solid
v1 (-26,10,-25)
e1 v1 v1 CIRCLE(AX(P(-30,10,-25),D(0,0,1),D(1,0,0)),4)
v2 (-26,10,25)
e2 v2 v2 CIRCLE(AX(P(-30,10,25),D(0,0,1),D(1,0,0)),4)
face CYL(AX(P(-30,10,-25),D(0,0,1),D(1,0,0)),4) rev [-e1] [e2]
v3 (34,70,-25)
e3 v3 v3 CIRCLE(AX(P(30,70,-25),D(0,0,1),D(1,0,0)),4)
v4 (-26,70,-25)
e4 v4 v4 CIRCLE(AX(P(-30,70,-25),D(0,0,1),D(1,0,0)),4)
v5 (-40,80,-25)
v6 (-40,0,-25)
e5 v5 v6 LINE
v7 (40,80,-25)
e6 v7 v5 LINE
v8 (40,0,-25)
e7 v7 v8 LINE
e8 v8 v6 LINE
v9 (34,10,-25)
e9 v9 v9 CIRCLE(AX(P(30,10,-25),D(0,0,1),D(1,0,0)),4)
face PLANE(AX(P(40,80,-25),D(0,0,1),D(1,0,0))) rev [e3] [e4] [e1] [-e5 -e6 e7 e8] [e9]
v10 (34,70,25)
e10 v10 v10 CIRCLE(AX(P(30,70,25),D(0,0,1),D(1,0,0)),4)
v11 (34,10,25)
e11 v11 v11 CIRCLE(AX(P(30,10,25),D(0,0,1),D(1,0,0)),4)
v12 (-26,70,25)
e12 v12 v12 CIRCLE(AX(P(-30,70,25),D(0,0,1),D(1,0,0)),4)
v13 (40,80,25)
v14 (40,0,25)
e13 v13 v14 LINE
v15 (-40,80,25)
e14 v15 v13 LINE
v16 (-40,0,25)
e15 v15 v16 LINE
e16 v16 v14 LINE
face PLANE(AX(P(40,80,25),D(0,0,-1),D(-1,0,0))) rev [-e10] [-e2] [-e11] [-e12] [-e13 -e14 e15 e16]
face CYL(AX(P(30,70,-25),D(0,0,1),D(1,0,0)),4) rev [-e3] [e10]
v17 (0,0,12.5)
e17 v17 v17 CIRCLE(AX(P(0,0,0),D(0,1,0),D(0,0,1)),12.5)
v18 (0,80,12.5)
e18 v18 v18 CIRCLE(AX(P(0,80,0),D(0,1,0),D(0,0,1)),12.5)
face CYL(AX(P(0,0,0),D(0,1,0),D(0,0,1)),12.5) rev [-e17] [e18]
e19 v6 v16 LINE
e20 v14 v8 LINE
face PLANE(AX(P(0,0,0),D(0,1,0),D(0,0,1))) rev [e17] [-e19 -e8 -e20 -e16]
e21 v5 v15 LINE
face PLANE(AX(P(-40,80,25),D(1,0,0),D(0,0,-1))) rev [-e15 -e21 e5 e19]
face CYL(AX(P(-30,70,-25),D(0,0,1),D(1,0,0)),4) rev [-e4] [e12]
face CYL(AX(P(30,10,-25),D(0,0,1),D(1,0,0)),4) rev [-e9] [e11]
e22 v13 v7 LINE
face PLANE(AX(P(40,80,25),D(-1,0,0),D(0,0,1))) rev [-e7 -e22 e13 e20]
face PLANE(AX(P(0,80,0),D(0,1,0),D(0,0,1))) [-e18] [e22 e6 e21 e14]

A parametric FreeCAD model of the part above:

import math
import FreeCAD as App
import Part
import Sketcher
Q = App.Units.Quantity

doc = App.newDocument("Part")
body = doc.addObject("PartDesign::Body", "Body")

sketch1 = body.newObject("Sketcher::SketchObject", "Sketch")
sketch1.AttachmentSupport = (doc.getObject("XZ_Plane"), [""])
sketch1.MapMode = "FlatFace"
sketch1.addGeometry(Part.LineSegment(App.Vector(-40, -25, 0), App.Vector(-40, 25, 0)), False)
sketch1.addGeometry(Part.LineSegment(App.Vector(-40, 25, 0), App.Vector(40, 25, 0)), False)
sketch1.addGeometry(Part.LineSegment(App.Vector(40, 25, 0), App.Vector(40, -25, 0)), False)
sketch1.addGeometry(Part.LineSegment(App.Vector(40, -25, 0), App.Vector(-40, -25, 0)), False)
sketch1.addConstraint(Sketcher.Constraint("Coincident", 0, 2, 1, 1))
sketch1.addConstraint(Sketcher.Constraint("Coincident", 1, 2, 2, 1))
sketch1.addConstraint(Sketcher.Constraint("Coincident", 2, 2, 3, 1))
sketch1.addConstraint(Sketcher.Constraint("Coincident", 3, 2, 0, 1))
sketch1.addConstraint(Sketcher.Constraint("Vertical", 0))
sketch1.addConstraint(Sketcher.Constraint("Horizontal", 1))
sketch1.addConstraint(Sketcher.Constraint("Vertical", 2))
sketch1.addConstraint(Sketcher.Constraint("Horizontal", 3))
sketch1.addConstraint(Sketcher.Constraint("Symmetric", 0, 2, 2, 2, -1, 1))
sketch1.addConstraint(Sketcher.Constraint("DistanceX", 1, 1, 1, 2, Q("80 mm")))
sketch1.addConstraint(Sketcher.Constraint("DistanceY", 0, 1, 0, 2, Q("50 mm")))
pad1 = body.newObject("PartDesign::Pad", "Pad")
pad1.Profile = sketch1
pad1.Length = 80
pad1.Reversed = True

sketch2 = body.newObject("Sketcher::SketchObject", "Sketch001")
sketch2.AttachmentSupport = (doc.getObject("XZ_Plane"), [""])
sketch2.MapMode = "FlatFace"
sketch2.AttachmentOffset = App.Placement(App.Vector(0, 0, -80), App.Rotation())
sketch2.addGeometry(Part.Circle(App.Vector(0, 0, 0), App.Vector(0, 0, 1), 12), False)
sketch2.addConstraint(Sketcher.Constraint("Coincident", 0, 3, -1, 1))
sketch2.addConstraint(Sketcher.Constraint("Diameter", 0, Q("25 mm")))
pocket1 = body.newObject("PartDesign::Pocket", "Pocket")
pocket1.Profile = sketch2
pocket1.Type = "ThroughAll"
pocket1.Reversed = True

sketch3 = body.newObject("Sketcher::SketchObject", "Sketch002")
sketch3.AttachmentSupport = (doc.getObject("XY_Plane"), [""])
sketch3.MapMode = "FlatFace"
sketch3.AttachmentOffset = App.Placement(App.Vector(0, 0, 25), App.Rotation())
sketch3.addGeometry(Part.ArcOfCircle(Part.Circle(App.Vector(-30, 70, 0), App.Vector(0, 0, 1), 4), math.radians(0), math.radians(270)), False)
sketch3.addGeometry(Part.ArcOfCircle(Part.Circle(App.Vector(-30, 70, 0), App.Vector(0, 0, 1), 4), math.radians(-90), math.radians(0)), False)
sketch3.addGeometry(Part.ArcOfCircle(Part.Circle(App.Vector(-30, 10, 0), App.Vector(0, 0, 1), 4), math.radians(90), math.radians(360)), False)
sketch3.addGeometry(Part.ArcOfCircle(Part.Circle(App.Vector(-30, 10, 0), App.Vector(0, 0, 1), 4), math.radians(0), math.radians(90)), False)
sketch3.addGeometry(Part.ArcOfCircle(Part.Circle(App.Vector(30, 10, 0), App.Vector(0, 0, 1), 4), math.radians(90), math.radians(180)), False)
sketch3.addGeometry(Part.ArcOfCircle(Part.Circle(App.Vector(30, 10, 0), App.Vector(0, 0, 1), 4), math.radians(180), math.radians(360)), False)
sketch3.addGeometry(Part.ArcOfCircle(Part.Circle(App.Vector(30, 10, 0), App.Vector(0, 0, 1), 4), math.radians(0), math.radians(90)), False)
sketch3.addGeometry(Part.ArcOfCircle(Part.Circle(App.Vector(30, 70, 0), App.Vector(0, 0, 1), 4), math.radians(180), math.radians(270)), False)
sketch3.addGeometry(Part.ArcOfCircle(Part.Circle(App.Vector(30, 70, 0), App.Vector(0, 0, 1), 4), math.radians(-90), math.radians(0)), False)
sketch3.addGeometry(Part.ArcOfCircle(Part.Circle(App.Vector(30, 70, 0), App.Vector(0, 0, 1), 4), math.radians(0), math.radians(180)), False)
sketch3.addConstraint(Sketcher.Constraint("Tangent", 0, 1, 1, 2))
sketch3.addConstraint(Sketcher.Constraint("Coincident", 1, 1, 0, 2))
sketch3.addConstraint(Sketcher.Constraint("Tangent", 2, 1, 3, 2))
sketch3.addConstraint(Sketcher.Constraint("Coincident", 3, 1, 2, 2))
sketch3.addConstraint(Sketcher.Constraint("Tangent", 4, 2, 5, 1))
sketch3.addConstraint(Sketcher.Constraint("Tangent", 5, 2, 6, 1))
sketch3.addConstraint(Sketcher.Constraint("Tangent", 6, 2, 4, 1))
sketch3.addConstraint(Sketcher.Constraint("Tangent", 7, 2, 8, 1))
sketch3.addConstraint(Sketcher.Constraint("Tangent", 8, 2, 9, 1))
sketch3.addConstraint(Sketcher.Constraint("Tangent", 9, 2, 7, 1))
sketch3.addConstraint(Sketcher.Constraint("Equal", 1, 2))
sketch3.addConstraint(Sketcher.Constraint("Equal", 3, 4))
sketch3.addConstraint(Sketcher.Constraint("Equal", 6, 7))
sketch3.addConstraint(Sketcher.Constraint("Symmetric", 2, 3, 4, 3, -2))
sketch3.addConstraint(Sketcher.Constraint("Symmetric", 0, 3, 7, 3, -2))
sketch3.addConstraint(Sketcher.Constraint("Horizontal", 9, 3, 0, 1))
sketch3.addConstraint(Sketcher.Constraint("Horizontal", 6, 3, 3, 1))
sketch3.addConstraint(Sketcher.Constraint("Horizontal", 3, 1, 4, 2))
sketch3.addConstraint(Sketcher.Constraint("Horizontal", 4, 2, 5, 2))
sketch3.addConstraint(Sketcher.Constraint("Horizontal", 0, 1, 8, 2))
sketch3.addConstraint(Sketcher.Constraint("Horizontal", 8, 2, 9, 2))
sketch3.addConstraint(Sketcher.Constraint("Vertical", 1, 3, 2, 3))
sketch3.addConstraint(Sketcher.Constraint("Vertical", 3, 3, 1, 1))
sketch3.addConstraint(Sketcher.Constraint("Vertical", 1, 1, 2, 1))
sketch3.addConstraint(Sketcher.Constraint("Vertical", 9, 3, 6, 2))
sketch3.addConstraint(Sketcher.Constraint("Vertical", 6, 2, 7, 2))
sketch3.addConstraint(Sketcher.Constraint("Radius", 0, Q("4 mm")))
sketch3.addConstraint(Sketcher.Constraint("DistanceX", 0, 3, -1, 1, Q("30 mm")))
sketch3.addConstraint(Sketcher.Constraint("DistanceY", -1, 1, 0, 3, Q("70 mm")))
sketch3.addConstraint(Sketcher.Constraint("DistanceY", -1, 1, 2, 3, Q("10 mm")))
pocket2 = body.newObject("PartDesign::Pocket", "Pocket001")
pocket2.Profile = sketch3
pocket2.Type = "ThroughAll"

doc.recompute()
